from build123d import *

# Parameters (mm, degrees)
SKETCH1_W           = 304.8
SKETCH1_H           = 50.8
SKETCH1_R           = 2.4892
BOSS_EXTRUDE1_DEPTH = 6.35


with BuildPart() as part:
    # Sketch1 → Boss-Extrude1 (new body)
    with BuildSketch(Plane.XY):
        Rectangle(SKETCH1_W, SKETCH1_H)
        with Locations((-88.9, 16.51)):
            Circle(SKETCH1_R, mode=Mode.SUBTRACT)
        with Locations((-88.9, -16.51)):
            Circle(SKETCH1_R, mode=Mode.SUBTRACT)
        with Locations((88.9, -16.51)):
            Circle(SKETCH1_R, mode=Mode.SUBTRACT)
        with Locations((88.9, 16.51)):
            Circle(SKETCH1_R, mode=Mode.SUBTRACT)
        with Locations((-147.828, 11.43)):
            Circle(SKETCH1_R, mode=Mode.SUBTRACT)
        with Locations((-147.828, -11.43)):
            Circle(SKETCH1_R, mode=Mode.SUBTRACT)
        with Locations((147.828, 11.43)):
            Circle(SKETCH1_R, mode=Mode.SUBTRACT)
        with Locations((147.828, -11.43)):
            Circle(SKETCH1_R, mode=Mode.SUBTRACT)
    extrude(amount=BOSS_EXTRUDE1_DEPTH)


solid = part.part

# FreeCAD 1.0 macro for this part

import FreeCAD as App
import Part
import Sketcher

V = App.Vector
Q = App.Units.Quantity


def add_polygon(sketch, points):
    """Adds a closed chain of lines whose ends are joined by coincident constraints."""
    first, n = sketch.GeometryCount, len(points)
    for a, b in zip(points, points[1:] + points[:1]):
        sketch.addGeometry(Part.LineSegment(App.Vector(*a, 0), App.Vector(*b, 0)), False)
    for i in range(n):
        sketch.addConstraint(Sketcher.Constraint("Coincident", first + i, 2, first + (i + 1) % n, 1))

doc = App.newDocument("Part")
body = doc.addObject("PartDesign::Body", "Body")

# Sketch on XY plane
sketch1 = body.newObject("Sketcher::SketchObject", "Sketch")
sketch1.AttachmentSupport = (doc.getObject("XY_Plane"), [""])
sketch1.MapMode = "FlatFace"
add_polygon(sketch1, [(-152.4, 25.4), (-152.4, -25.4), (152.4, -25.4), (152.4, 25.4)])  # lines 0-3
sketch1.addGeometry(Part.Circle(V(-88.9, -16.5, 0), V(0, 0, 1), 2.5), False)  # 4
sketch1.addGeometry(Part.Circle(V(-147.8, -11.4, 0), V(0, 0, 1), 2.5), False)  # 5
sketch1.addGeometry(Part.Circle(V(88.9, -16.5, 0), V(0, 0, 1), 2.5), False)  # 6
sketch1.addGeometry(Part.Circle(V(147.8, -11.4, 0), V(0, 0, 1), 2.5), False)  # 7
sketch1.addGeometry(Part.Circle(V(-147.8, 11.4, 0), V(0, 0, 1), 2.5), False)  # 8
sketch1.addGeometry(Part.Circle(V(-88.9, 16.5, 0), V(0, 0, 1), 2.5), False)  # 9
sketch1.addGeometry(Part.Circle(V(147.8, 11.4, 0), V(0, 0, 1), 2.5), False)  # 10
sketch1.addGeometry(Part.Circle(V(88.9, 16.5, 0), V(0, 0, 1), 2.5), False)  # 11
sketch1.addConstraint([
    Sketcher.Constraint("Vertical", 0),
    Sketcher.Constraint("Horizontal", 1),
    Sketcher.Constraint("Vertical", 2),
    Sketcher.Constraint("Horizontal", 3),
    Sketcher.Constraint("Equal", 4, 5),
    Sketcher.Constraint("Equal", 5, 6),
    Sketcher.Constraint("Equal", 6, 7),
    Sketcher.Constraint("Equal", 7, 8),
    Sketcher.Constraint("Equal", 8, 9),
    Sketcher.Constraint("Equal", 9, 10),
    Sketcher.Constraint("Equal", 10, 11),
    Sketcher.Constraint("Symmetric", 7, 3, 8, 3, -1, 1),
    Sketcher.Constraint("Symmetric", 6, 3, 9, 3, -1, 1),
    Sketcher.Constraint("Symmetric", 5, 3, 10, 3, -1, 1),
    Sketcher.Constraint("Symmetric", 4, 3, 11, 3, -1, 1),
    Sketcher.Constraint("Symmetric", 0, 2, 2, 2, -1, 1),
    Sketcher.Constraint("Symmetric", 4, 3, 6, 3, -2),
    Sketcher.Constraint("Symmetric", 5, 3, 7, 3, -2),
    Sketcher.Constraint("DistanceX", 1, 1, 1, 2, Q("12 in")),
    Sketcher.Constraint("DistanceY", 0, 2, 0, 1, Q("2 in")),
    Sketcher.Constraint("Diameter", 4, Q("0.196 in")),
    Sketcher.Constraint("DistanceX", 4, 3, 6, 3, Q("7 in")),
    Sketcher.Constraint("DistanceY", 4, 3, 5, 3, Q("0.2 in")),
    Sketcher.Constraint("DistanceY", 5, 3, 8, 3, Q("0.9 in")),
    Sketcher.Constraint("DistanceX", 5, 3, -1, 1, Q("5.82 in")),
])
pad1 = body.newObject("PartDesign::Pad", "Pad")
pad1.Profile = sketch1
pad1.Length = Q("0.25 in")

doc.recompute()
